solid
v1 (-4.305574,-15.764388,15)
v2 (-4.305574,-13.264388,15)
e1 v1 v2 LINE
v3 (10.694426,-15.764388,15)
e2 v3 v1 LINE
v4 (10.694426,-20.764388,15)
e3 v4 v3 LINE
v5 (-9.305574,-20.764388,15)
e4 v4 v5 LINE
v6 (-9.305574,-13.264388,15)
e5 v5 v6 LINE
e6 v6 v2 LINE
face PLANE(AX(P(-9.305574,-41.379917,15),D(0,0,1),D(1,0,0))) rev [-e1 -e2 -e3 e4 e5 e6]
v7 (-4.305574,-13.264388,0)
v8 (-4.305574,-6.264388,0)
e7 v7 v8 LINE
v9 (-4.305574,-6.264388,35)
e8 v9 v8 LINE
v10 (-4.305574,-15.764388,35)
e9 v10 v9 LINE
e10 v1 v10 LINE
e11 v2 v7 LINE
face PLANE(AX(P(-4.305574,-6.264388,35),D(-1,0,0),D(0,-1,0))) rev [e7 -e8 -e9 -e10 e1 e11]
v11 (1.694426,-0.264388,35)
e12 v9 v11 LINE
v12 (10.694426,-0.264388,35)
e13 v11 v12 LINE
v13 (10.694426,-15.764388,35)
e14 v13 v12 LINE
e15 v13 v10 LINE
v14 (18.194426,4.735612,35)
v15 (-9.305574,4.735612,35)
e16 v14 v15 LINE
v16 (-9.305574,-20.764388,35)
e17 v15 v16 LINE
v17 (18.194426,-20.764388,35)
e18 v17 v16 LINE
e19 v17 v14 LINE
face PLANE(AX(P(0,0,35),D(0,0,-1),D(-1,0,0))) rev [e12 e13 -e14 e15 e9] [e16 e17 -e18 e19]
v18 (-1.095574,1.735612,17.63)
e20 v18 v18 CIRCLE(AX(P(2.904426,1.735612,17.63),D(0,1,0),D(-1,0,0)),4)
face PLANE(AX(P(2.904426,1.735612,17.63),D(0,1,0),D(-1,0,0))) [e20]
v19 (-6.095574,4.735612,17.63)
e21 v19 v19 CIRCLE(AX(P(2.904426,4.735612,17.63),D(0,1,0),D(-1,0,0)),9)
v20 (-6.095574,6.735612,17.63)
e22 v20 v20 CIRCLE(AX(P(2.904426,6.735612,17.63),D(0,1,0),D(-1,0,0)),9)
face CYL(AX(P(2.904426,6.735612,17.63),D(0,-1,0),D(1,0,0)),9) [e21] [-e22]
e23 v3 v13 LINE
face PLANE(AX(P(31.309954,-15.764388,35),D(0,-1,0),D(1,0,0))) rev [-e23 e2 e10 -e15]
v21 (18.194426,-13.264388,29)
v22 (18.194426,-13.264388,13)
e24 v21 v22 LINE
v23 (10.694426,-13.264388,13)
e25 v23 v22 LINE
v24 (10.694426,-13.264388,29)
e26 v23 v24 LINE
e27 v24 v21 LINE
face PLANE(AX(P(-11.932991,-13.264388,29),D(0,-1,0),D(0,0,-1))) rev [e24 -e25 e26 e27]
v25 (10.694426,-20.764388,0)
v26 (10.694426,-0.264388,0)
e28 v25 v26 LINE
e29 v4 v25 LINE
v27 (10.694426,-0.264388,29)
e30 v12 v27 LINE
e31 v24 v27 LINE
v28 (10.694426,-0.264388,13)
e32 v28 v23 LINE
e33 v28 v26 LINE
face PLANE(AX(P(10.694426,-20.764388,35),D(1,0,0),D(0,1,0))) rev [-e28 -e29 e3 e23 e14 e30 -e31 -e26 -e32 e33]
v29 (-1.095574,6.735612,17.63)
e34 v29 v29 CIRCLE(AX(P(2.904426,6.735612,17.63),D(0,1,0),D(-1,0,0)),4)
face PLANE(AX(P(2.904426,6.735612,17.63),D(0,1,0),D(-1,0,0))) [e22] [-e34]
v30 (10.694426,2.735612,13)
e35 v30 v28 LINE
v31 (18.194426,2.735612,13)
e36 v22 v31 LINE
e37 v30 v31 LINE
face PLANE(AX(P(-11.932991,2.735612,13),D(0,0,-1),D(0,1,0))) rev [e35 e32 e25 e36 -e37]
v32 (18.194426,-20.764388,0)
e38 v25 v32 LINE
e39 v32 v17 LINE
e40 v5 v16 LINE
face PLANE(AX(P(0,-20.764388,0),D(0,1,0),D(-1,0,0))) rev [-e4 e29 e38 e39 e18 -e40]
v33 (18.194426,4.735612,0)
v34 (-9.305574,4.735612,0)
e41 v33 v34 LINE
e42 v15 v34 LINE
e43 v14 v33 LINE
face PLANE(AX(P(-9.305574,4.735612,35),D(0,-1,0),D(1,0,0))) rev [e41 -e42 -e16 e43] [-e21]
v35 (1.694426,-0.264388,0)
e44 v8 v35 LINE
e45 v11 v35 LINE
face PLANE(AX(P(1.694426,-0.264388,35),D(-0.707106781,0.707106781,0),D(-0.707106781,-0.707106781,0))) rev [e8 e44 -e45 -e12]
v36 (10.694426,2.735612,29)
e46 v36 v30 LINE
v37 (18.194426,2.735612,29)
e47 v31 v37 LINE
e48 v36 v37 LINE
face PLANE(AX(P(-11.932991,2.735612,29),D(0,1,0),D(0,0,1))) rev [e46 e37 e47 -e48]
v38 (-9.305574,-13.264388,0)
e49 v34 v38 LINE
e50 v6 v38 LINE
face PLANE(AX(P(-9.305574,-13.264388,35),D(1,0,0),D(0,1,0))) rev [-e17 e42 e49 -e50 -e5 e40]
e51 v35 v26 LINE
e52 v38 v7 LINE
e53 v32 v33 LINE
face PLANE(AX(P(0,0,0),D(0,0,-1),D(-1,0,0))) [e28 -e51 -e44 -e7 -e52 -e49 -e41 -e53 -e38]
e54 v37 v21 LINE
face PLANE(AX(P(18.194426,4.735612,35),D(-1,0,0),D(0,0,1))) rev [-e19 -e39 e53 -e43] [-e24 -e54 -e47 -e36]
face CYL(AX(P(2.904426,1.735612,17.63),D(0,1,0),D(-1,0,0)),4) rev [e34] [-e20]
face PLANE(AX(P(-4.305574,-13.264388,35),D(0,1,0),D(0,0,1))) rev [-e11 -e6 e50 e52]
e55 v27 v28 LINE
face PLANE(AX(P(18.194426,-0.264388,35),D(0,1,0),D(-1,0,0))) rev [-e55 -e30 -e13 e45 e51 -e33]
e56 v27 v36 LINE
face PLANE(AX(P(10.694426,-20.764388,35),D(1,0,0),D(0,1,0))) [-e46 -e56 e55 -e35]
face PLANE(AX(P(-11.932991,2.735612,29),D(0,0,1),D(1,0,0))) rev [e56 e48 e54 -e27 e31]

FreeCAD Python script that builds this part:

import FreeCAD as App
import Part
import Sketcher

V = App.Vector
Q = App.Units.Quantity


def add_polygon(sketch, points):
    """Adds a closed chain of lines whose ends are joined by coincident constraints."""
    first, n = sketch.GeometryCount, len(points)
    for a, b in zip(points, points[1:] + points[:1]):
        sketch.addGeometry(Part.LineSegment(App.Vector(*a, 0), App.Vector(*b, 0)), False)
    for i in range(n):
        sketch.addConstraint(Sketcher.Constraint("Coincident", first + i, 2, first + (i + 1) % n, 1))

doc = App.newDocument("Part")
params = doc.addObject("Spreadsheet::Sheet", "Params")
for row, (alias, value) in enumerate([
    ("sketch1_width", "5 mm"),
    ("sketch1_height", "18 mm"),
    ("sketch1_height2", "7 mm"),
    ("sketch1_width2", "27.5 mm"),
    ("pad1_length", "35 mm"),
    ("sketch2_diameter", "18 mm"),
    ("pad2_length", "2 mm"),
    ("sketch3_diameter", "8 mm"),
    ("pocket1_length", "5 mm"),
    ("sketch4_height", "35 mm"),
    ("sketch4_width", "7.5 mm"),
    ("pad3_length", "20.5 mm"),
    ("sketch5_height", "5 mm"),
    ("sketch5_width", "25.5 mm"),
    ("pad4_length", "7.5 mm"),
    ("sketch6_width", "5 mm"),
    ("sketch6_height", "20 mm"),
    ("pad5_length", "7.5 mm"),
    ("sketch7_width", "5 mm"),
    ("sketch7_height", "20 mm"),
    ("pad6_length", "15 mm"),
    ("sketch8_width", "16 mm"),
    ("pocket2_length", "7.5 mm"),
], start=1):
    params.set(f"A{row}", alias)
    params.set(f"B{row}", "=" + value)
    params.setAlias(f"B{row}", alias)

body = doc.addObject("PartDesign::Body", "Body")

sketch1 = body.newObject("Sketcher::SketchObject", "Sketch")
sketch1.AttachmentSupport = (doc.getObject("XY_Plane"), [""])
sketch1.MapMode = "FlatFace"
add_polygon(sketch1, [(18, 5), (-9, 5), (-9, -13), (-4, -13), (-4, -6), (2, 0), (18, 0)])
sketch1.addConstraint(Sketcher.Constraint("Horizontal", 0))
sketch1.addConstraint(Sketcher.Constraint("Vertical", 1))
sketch1.addConstraint(Sketcher.Constraint("Horizontal", 2))
sketch1.addConstraint(Sketcher.Constraint("Vertical", 3))
sketch1.addConstraint(Sketcher.Constraint("Horizontal", 5))
sketch1.addConstraint(Sketcher.Constraint("Vertical", 6))
sketch1.addConstraint(Sketcher.Constraint("Equal", 2, 6))
sketch1.addConstraint(Sketcher.Constraint("DistanceX", 2, 1, 2, 2, Q("5 mm")))
sketch1.addConstraint(Sketcher.Constraint("DistanceY", 1, 2, 1, 1, Q("18 mm")))
sketch1.addConstraint(Sketcher.Constraint("DistanceY", 3, 1, 3, 2, Q("7 mm")))
sketch1.addConstraint(Sketcher.Constraint("Angle", 4, Q("45 deg")))
sketch1.addConstraint(Sketcher.Constraint("DistanceX", 0, 2, 0, 1, Q("27.5 mm")))
sketch1.addConstraint(Sketcher.Constraint("DistanceY", -1, 1, 0, 2, Q("4.735612 mm")))
sketch1.addConstraint(Sketcher.Constraint("DistanceX", 0, 2, -1, 1, Q("9.305574 mm")))
sketch1.setExpression("Constraints[14]", "Params.sketch1_width")
sketch1.setExpression("Constraints[15]", "Params.sketch1_height")
sketch1.setExpression("Constraints[16]", "Params.sketch1_height2")
sketch1.setExpression("Constraints[18]", "Params.sketch1_width2")
pad1 = body.newObject("PartDesign::Pad", "Pad")
pad1.Profile = sketch1
pad1.setExpression("Length", "Params.pad1_length")

sketch2 = body.newObject("Sketcher::SketchObject", "Sketch001")
sketch2.AttachmentSupport = (doc.getObject("XZ_Plane"), [""])
sketch2.MapMode = "FlatFace"
sketch2.AttachmentOffset = App.Placement(V(0, 0, -4.735612), App.Rotation())
sketch2.addGeometry(Part.Circle(V(3, 18, 0), V(0, 0, 1), 9), False)
sketch2.addConstraint(Sketcher.Constraint("Diameter", 0, Q("18 mm")))
sketch2.addConstraint(Sketcher.Constraint("DistanceY", -1, 1, 0, 3, Q("17.63 mm")))
sketch2.addConstraint(Sketcher.Constraint("DistanceX", -1, 1, 0, 3, Q("2.904426 mm")))
sketch2.setExpression("Constraints[0]", "Params.sketch2_diameter")
pad2 = body.newObject("PartDesign::Pad", "Pad001")
pad2.Profile = sketch2
pad2.setExpression("Length", "Params.pad2_length")
pad2.Reversed = True

sketch3 = body.newObject("Sketcher::SketchObject", "Sketch002")
sketch3.AttachmentSupport = (doc.getObject("XZ_Plane"), [""])
sketch3.MapMode = "FlatFace"
sketch3.AttachmentOffset = App.Placement(V(0, 0, -6.735612), App.Rotation())
sketch3.addGeometry(Part.Circle(V(2.9, 17.6, 0), V(0, 0, 1), 4), False)
sketch3.addConstraint(Sketcher.Constraint("Diameter", 0, Q("8 mm")))
sketch3.addConstraint(Sketcher.Constraint("DistanceY", -1, 1, 0, 3, Q("17.63 mm")))
sketch3.addConstraint(Sketcher.Constraint("DistanceX", -1, 1, 0, 3, Q("2.904426 mm")))
sketch3.setExpression("Constraints[0]", "Params.sketch3_diameter")
pocket1 = body.newObject("PartDesign::Pocket", "Pocket")
pocket1.Profile = sketch3
pocket1.setExpression("Length", "Params.pocket1_length")
pocket1.Reversed = True

sketch4 = body.newObject("Sketcher::SketchObject", "Sketch003")
sketch4.AttachmentSupport = (doc.getObject("XZ_Plane"), [""])
sketch4.MapMode = "FlatFace"
sketch4.AttachmentOffset = App.Placement(V(0, 0, 0.264388), App.Rotation())
add_polygon(sketch4, [(11, 35), (11, 0), (18, 0), (18, 35)])
sketch4.addConstraint(Sketcher.Constraint("Vertical", 0))
sketch4.addConstraint(Sketcher.Constraint("Horizontal", 1))
sketch4.addConstraint(Sketcher.Constraint("Vertical", 2))
sketch4.addConstraint(Sketcher.Constraint("Horizontal", 3))
sketch4.addConstraint(Sketcher.Constraint("PointOnObject", 0, 2, -1))
sketch4.addConstraint(Sketcher.Constraint("DistanceY", 0, 2, 0, 1, Q("35 mm")))
sketch4.addConstraint(Sketcher.Constraint("DistanceX", 1, 1, 1, 2, Q("7.5 mm")))
sketch4.addConstraint(Sketcher.Constraint("DistanceX", -1, 1, 0, 2, Q("10.694426 mm")))
sketch4.setExpression("Constraints[9]", "Params.sketch4_height")
sketch4.setExpression("Constraints[10]", "Params.sketch4_width")
pad3 = body.newObject("PartDesign::Pad", "Pad002")
pad3.Profile = sketch4
pad3.setExpression("Length", "Params.pad3_length")

sketch5 = body.newObject("Sketcher::SketchObject", "Sketch004")
sketch5.AttachmentSupport = (doc.getObject("YZ_Plane"), [""])
sketch5.MapMode = "FlatFace"
sketch5.AttachmentOffset = App.Placement(V(0, 0, 10.694426), App.Rotation())
add_polygon(sketch5, [(5, 5), (-21, 5), (-21, 0), (5, 0)])
sketch5.addConstraint(Sketcher.Constraint("Horizontal", 0))
sketch5.addConstraint(Sketcher.Constraint("Vertical", 1))
sketch5.addConstraint(Sketcher.Constraint("Horizontal", 2))
sketch5.addConstraint(Sketcher.Constraint("Vertical", 3))
sketch5.addConstraint(Sketcher.Constraint("PointOnObject", 1, 2, -1))
sketch5.addConstraint(Sketcher.Constraint("DistanceY", 1, 2, 1, 1, Q("5 mm")))
sketch5.addConstraint(Sketcher.Constraint("DistanceX", 0, 2, 0, 1, Q("25.5 mm")))
sketch5.addConstraint(Sketcher.Constraint("DistanceX", 0, 2, -1, 1, Q("20.764388 mm")))
sketch5.setExpression("Constraints[9]", "Params.sketch5_height")
sketch5.setExpression("Constraints[10]", "Params.sketch5_width")
pad4 = body.newObject("PartDesign::Pad", "Pad003")
pad4.Profile = sketch5
pad4.setExpression("Length", "Params.pad4_length")

sketch6 = body.newObject("Sketcher::SketchObject", "Sketch005")
sketch6.AttachmentSupport = (doc.getObject("XZ_Plane"), [""])
sketch6.MapMode = "FlatFace"
sketch6.AttachmentOffset = App.Placement(V(0, 0, 13.264388), App.Rotation())
add_polygon(sketch6, [(-9, 35), (-9, 15), (-4, 15), (-4, 35)])
sketch6.addConstraint(Sketcher.Constraint("Vertical", 0))
sketch6.addConstraint(Sketcher.Constraint("Horizontal", 1))
sketch6.addConstraint(Sketcher.Constraint("Vertical", 2))
sketch6.addConstraint(Sketcher.Constraint("Horizontal", 3))
sketch6.addConstraint(Sketcher.Constraint("DistanceX", 1, 1, 1, 2, Q("5 mm")))
sketch6.addConstraint(Sketcher.Constraint("DistanceY", 0, 2, 0, 1, Q("20 mm")))
sketch6.addConstraint(Sketcher.Constraint("DistanceY", -1, 1, 0, 2, Q("15 mm")))
sketch6.addConstraint(Sketcher.Constraint("DistanceX", 0, 2, -1, 1, Q("9.305574 mm")))
sketch6.setExpression("Constraints[8]", "Params.sketch6_width")
sketch6.setExpression("Constraints[9]", "Params.sketch6_height")
pad5 = body.newObject("PartDesign::Pad", "Pad004")
pad5.Profile = sketch6
pad5.setExpression("Length", "Params.pad5_length")

sketch7 = body.newObject("Sketcher::SketchObject", "Sketch006")
sketch7.AttachmentSupport = (doc.getObject("YZ_Plane"), [""])
sketch7.MapMode = "FlatFace"
sketch7.AttachmentOffset = App.Placement(V(0, 0, -4.305574), App.Rotation())
add_polygon(sketch7, [(-16, 35), (-21, 35), (-21, 15), (-16, 15)])
sketch7.addConstraint(Sketcher.Constraint("Horizontal", 0))
sketch7.addConstraint(Sketcher.Constraint("Vertical", 1))
sketch7.addConstraint(Sketcher.Constraint("Horizontal", 2))
sketch7.addConstraint(Sketcher.Constraint("Vertical", 3))
sketch7.addConstraint(Sketcher.Constraint("DistanceX", 0, 2, 0, 1, Q("5 mm")))
sketch7.addConstraint(Sketcher.Constraint("DistanceY", 1, 2, 1, 1, Q("20 mm")))
sketch7.addConstraint(Sketcher.Constraint("DistanceY", -1, 1, 0, 2, Q("35 mm")))
sketch7.addConstraint(Sketcher.Constraint("DistanceX", 0, 2, -1, 1, Q("20.764388 mm")))
sketch7.setExpression("Constraints[8]", "Params.sketch7_width")
sketch7.setExpression("Constraints[9]", "Params.sketch7_height")
pad6 = body.newObject("PartDesign::Pad", "Pad005")
pad6.Profile = sketch7
pad6.setExpression("Length", "Params.pad6_length")

sketch8 = body.newObject("Sketcher::SketchObject", "Sketch007")
sketch8.AttachmentSupport = (doc.getObject("YZ_Plane"), [""])
sketch8.MapMode = "FlatFace"
sketch8.AttachmentOffset = App.Placement(V(0, 0, 18.194426), App.Rotation())
add_polygon(sketch8, [(3, 29), (-13, 29), (-13, 13), (3, 13)])
sketch8.addConstraint(Sketcher.Constraint("Horizontal", 0))
sketch8.addConstraint(Sketcher.Constraint("Vertical", 1))
sketch8.addConstraint(Sketcher.Constraint("Horizontal", 2))
sketch8.addConstraint(Sketcher.Constraint("Vertical", 3))
sketch8.addConstraint(Sketcher.Constraint("Equal", 2, 1))
sketch8.addConstraint(Sketcher.Constraint("DistanceX", 0, 2, 0, 1, Q("16 mm")))
sketch8.addConstraint(Sketcher.Constraint("DistanceY", -1, 1, 0, 2, Q("29 mm")))
sketch8.addConstraint(Sketcher.Constraint("DistanceX", 0, 2, -1, 1, Q("13.264388 mm")))
sketch8.setExpression("Constraints[9]", "Params.sketch8_width")
pocket2 = body.newObject("PartDesign::Pocket", "Pocket001")
pocket2.Profile = sketch8
pocket2.setExpression("Length", "Params.pocket2_length")

doc.recompute()
